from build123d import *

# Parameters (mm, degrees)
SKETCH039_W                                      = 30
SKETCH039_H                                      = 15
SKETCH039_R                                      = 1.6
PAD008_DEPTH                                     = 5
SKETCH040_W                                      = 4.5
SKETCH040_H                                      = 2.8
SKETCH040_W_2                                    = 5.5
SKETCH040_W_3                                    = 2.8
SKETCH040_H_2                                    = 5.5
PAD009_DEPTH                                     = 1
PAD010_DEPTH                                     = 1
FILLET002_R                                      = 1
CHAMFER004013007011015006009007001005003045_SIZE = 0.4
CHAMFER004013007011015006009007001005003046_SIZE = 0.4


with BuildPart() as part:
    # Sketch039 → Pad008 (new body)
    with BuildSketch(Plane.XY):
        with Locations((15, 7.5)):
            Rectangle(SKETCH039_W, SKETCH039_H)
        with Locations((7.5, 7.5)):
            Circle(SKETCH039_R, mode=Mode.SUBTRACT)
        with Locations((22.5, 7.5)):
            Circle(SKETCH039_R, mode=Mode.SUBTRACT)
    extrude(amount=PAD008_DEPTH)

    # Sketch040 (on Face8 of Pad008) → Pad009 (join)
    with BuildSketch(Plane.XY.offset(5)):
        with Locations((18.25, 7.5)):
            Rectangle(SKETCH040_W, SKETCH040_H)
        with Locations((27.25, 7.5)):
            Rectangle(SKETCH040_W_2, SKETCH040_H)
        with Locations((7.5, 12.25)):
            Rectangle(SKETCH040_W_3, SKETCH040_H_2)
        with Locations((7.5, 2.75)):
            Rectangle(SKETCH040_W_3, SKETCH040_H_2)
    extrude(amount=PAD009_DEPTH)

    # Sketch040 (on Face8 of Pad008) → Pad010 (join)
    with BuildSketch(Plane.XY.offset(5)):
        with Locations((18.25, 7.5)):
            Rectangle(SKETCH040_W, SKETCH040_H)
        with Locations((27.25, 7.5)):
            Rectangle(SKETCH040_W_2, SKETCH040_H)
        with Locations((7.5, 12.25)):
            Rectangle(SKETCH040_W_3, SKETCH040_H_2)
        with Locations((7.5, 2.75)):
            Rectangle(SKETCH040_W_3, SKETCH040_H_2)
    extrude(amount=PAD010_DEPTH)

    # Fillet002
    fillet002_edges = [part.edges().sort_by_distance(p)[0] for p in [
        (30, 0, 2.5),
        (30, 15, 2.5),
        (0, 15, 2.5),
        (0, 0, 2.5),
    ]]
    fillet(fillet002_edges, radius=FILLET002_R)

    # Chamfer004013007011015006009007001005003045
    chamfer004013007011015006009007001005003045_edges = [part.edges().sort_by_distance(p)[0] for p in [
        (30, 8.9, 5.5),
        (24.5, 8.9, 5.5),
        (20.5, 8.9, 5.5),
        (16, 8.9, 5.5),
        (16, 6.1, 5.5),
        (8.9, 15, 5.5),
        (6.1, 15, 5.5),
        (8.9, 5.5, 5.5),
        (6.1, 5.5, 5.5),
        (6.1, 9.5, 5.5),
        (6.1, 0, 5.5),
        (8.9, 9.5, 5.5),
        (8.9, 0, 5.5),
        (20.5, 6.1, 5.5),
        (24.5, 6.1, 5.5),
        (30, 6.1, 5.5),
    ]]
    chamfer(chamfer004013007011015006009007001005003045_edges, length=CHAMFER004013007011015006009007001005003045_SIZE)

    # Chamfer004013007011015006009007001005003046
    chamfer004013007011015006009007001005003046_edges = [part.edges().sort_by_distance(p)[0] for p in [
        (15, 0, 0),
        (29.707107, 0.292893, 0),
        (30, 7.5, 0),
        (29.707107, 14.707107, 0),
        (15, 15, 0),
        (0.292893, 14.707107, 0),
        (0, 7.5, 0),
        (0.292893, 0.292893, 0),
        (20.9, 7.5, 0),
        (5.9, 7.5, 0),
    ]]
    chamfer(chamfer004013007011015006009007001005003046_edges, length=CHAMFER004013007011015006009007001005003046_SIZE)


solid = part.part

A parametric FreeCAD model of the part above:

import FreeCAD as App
import Part
import Sketcher

V = App.Vector


def edges_at(feature, points):
    """Names of the edges that pass closest to the given points."""
    edges = feature.Shape.Edges
    near = lambda p: min(range(len(edges)), key=lambda i: edges[i].distToShape(Part.Vertex(*p))[0])
    return sorted({f"Edge{near(p) + 1}" for p in points})


def add_polygon(sketch, points):
    """Adds a closed chain of lines whose ends are joined by coincident constraints."""
    first, n = sketch.GeometryCount, len(points)
    for a, b in zip(points, points[1:] + points[:1]):
        sketch.addGeometry(Part.LineSegment(App.Vector(*a, 0), App.Vector(*b, 0)), False)
    for i in range(n):
        sketch.addConstraint(Sketcher.Constraint("Coincident", first + i, 2, first + (i + 1) % n, 1))

doc = App.newDocument("Part")
body = doc.addObject("PartDesign::Body", "Body")

# Sketch on XY plane
sketch1 = body.newObject("Sketcher::SketchObject", "Sketch")
sketch1.AttachmentSupport = (doc.getObject("XY_Plane"), [""])
sketch1.MapMode = "FlatFace"
add_polygon(sketch1, [(0, 15), (0, 0), (30, 0), (30, 15)])  # lines 0-3
sketch1.addGeometry(Part.Circle(V(7.5, 7.5, 0), V(0, 0, 1), 1.6), False)  # 4
sketch1.addGeometry(Part.Circle(V(22.5, 7.5, 0), V(0, 0, 1), 1.6), False)  # 5
sketch1.addConstraint([
    Sketcher.Constraint("Vertical", 0),
    Sketcher.Constraint("Horizontal", 1),
    Sketcher.Constraint("Vertical", 2),
    Sketcher.Constraint("Horizontal", 3),
    Sketcher.Constraint("Coincident", 0, 2, -1, 1),
    Sketcher.Constraint("Equal", 4, 5),
    Sketcher.Constraint("Horizontal", 4, 3, 5, 3),
    Sketcher.Constraint("Diameter", 4, 3.2),
    Sketcher.Constraint("DistanceX", 1, 1, 1, 2, 30.0),
    Sketcher.Constraint("DistanceY", 0, 2, 0, 1, 15.0),
    Sketcher.Constraint("DistanceX", 4, 3, 5, 3, 15.0),
    Sketcher.Constraint("DistanceX", -1, 1, 4, 3, 7.5),
    Sketcher.Constraint("DistanceY", -1, 1, 4, 3, 7.5),
])
pad1 = body.newObject("PartDesign::Pad", "Pad")
pad1.Profile = sketch1
pad1.Length = 5

# Sketch on XY plane
sketch2 = body.newObject("Sketcher::SketchObject", "Sketch001")
sketch2.AttachmentSupport = (doc.getObject("XY_Plane"), [""])
sketch2.MapMode = "FlatFace"
sketch2.AttachmentOffset = App.Placement(V(0, 0, 5), App.Rotation())
add_polygon(sketch2, [(16, 8.9), (16, 6.1), (20.5, 6.1), (20.5, 8.9)])  # lines 0-3
add_polygon(sketch2, [(24.5, 8.9), (24.5, 6.1), (30, 6.1), (30, 8.9)])  # lines 4-7
add_polygon(sketch2, [(6.1, 15), (6.1, 9.5), (8.9, 9.5), (8.9, 15)])  # lines 8-11
add_polygon(sketch2, [(6.1, 5.5), (6.1, 0), (8.9, 0), (8.9, 5.5)])  # lines 12-15
sketch2.addConstraint([
    Sketcher.Constraint("Vertical", 0),
    Sketcher.Constraint("Horizontal", 1),
    Sketcher.Constraint("Vertical", 2),
    Sketcher.Constraint("Horizontal", 3),
    Sketcher.Constraint("Vertical", 4),
    Sketcher.Constraint("Horizontal", 5),
    Sketcher.Constraint("Vertical", 6),
    Sketcher.Constraint("Horizontal", 7),
    Sketcher.Constraint("Vertical", 8),
    Sketcher.Constraint("Horizontal", 9),
    Sketcher.Constraint("Vertical", 10),
    Sketcher.Constraint("Horizontal", 11),
    Sketcher.Constraint("Vertical", 12),
    Sketcher.Constraint("Horizontal", 13),
    Sketcher.Constraint("Vertical", 14),
    Sketcher.Constraint("Horizontal", 15),
    Sketcher.Constraint("PointOnObject", 12, 2, -1),
    Sketcher.Constraint("Horizontal", 1, 2, 4, 2),
    Sketcher.Constraint("Horizontal", 3, 2, 6, 2),
    Sketcher.Constraint("Vertical", 11, 2, 12, 2),
    Sketcher.Constraint("Vertical", 10, 2, 13, 2),
    Sketcher.Constraint("Equal", 15, 0),
    Sketcher.Constraint("Equal", 7, 8),
    Sketcher.Constraint("Equal", 10, 12),
    Sketcher.Constraint("DistanceX", 1, 1, 1, 2, 4.5),
    Sketcher.Constraint("DistanceX", 5, 1, 5, 2, 5.5),
    Sketcher.Constraint("DistanceX", 9, 1, 9, 2, 2.8),
    Sketcher.Constraint("DistanceX", -1, 1, 0, 2, 16.0),
    Sketcher.Constraint("DistanceX", -1, 1, 5, 2, 30.0),
    Sketcher.Constraint("DistanceY", -1, 1, 10, 2, 15.0),
    Sketcher.Constraint("DistanceY", -1, 1, 0, 2, 6.1),
    Sketcher.Constraint("DistanceX", -1, 1, 8, 2, 6.1),
])
pad2 = body.newObject("PartDesign::Pad", "Pad001")
pad2.Profile = sketch2
pad2.Length = 1

# Sketch on XY plane
sketch3 = body.newObject("Sketcher::SketchObject", "Sketch002")
sketch3.AttachmentSupport = (doc.getObject("XY_Plane"), [""])
sketch3.MapMode = "FlatFace"
sketch3.AttachmentOffset = App.Placement(V(0, 0, 5), App.Rotation())
add_polygon(sketch3, [(16, 8.9), (16, 6.1), (20.5, 6.1), (20.5, 8.9)])  # lines 0-3
add_polygon(sketch3, [(24.5, 8.9), (24.5, 6.1), (30, 6.1), (30, 8.9)])  # lines 4-7
add_polygon(sketch3, [(6.1, 15), (6.1, 9.5), (8.9, 9.5), (8.9, 15)])  # lines 8-11
add_polygon(sketch3, [(6.1, 5.5), (6.1, 0), (8.9, 0), (8.9, 5.5)])  # lines 12-15
sketch3.addConstraint([
    Sketcher.Constraint("Vertical", 0),
    Sketcher.Constraint("Horizontal", 1),
    Sketcher.Constraint("Vertical", 2),
    Sketcher.Constraint("Horizontal", 3),
    Sketcher.Constraint("Vertical", 4),
    Sketcher.Constraint("Horizontal", 5),
    Sketcher.Constraint("Vertical", 6),
    Sketcher.Constraint("Horizontal", 7),
    Sketcher.Constraint("Vertical", 8),
    Sketcher.Constraint("Horizontal", 9),
    Sketcher.Constraint("Vertical", 10),
    Sketcher.Constraint("Horizontal", 11),
    Sketcher.Constraint("Vertical", 12),
    Sketcher.Constraint("Horizontal", 13),
    Sketcher.Constraint("Vertical", 14),
    Sketcher.Constraint("Horizontal", 15),
    Sketcher.Constraint("PointOnObject", 12, 2, -1),
    Sketcher.Constraint("Horizontal", 1, 2, 4, 2),
    Sketcher.Constraint("Horizontal", 3, 2, 6, 2),
    Sketcher.Constraint("Vertical", 11, 2, 12, 2),
    Sketcher.Constraint("Vertical", 10, 2, 13, 2),
    Sketcher.Constraint("Equal", 15, 0),
    Sketcher.Constraint("Equal", 7, 8),
    Sketcher.Constraint("Equal", 10, 12),
    Sketcher.Constraint("DistanceX", 1, 1, 1, 2, 4.5),
    Sketcher.Constraint("DistanceX", 5, 1, 5, 2, 5.5),
    Sketcher.Constraint("DistanceX", 9, 1, 9, 2, 2.8),
    Sketcher.Constraint("DistanceX", -1, 1, 0, 2, 16.0),
    Sketcher.Constraint("DistanceX", -1, 1, 5, 2, 30.0),
    Sketcher.Constraint("DistanceY", -1, 1, 10, 2, 15.0),
    Sketcher.Constraint("DistanceY", -1, 1, 0, 2, 6.1),
    Sketcher.Constraint("DistanceX", -1, 1, 8, 2, 6.1),
])
pad3 = body.newObject("PartDesign::Pad", "Pad002")
pad3.Profile = sketch3
pad3.Length = 1
doc.recompute()

fillet = body.newObject("PartDesign::Fillet", "Fillet")
fillet.Base = (pad3, edges_at(pad3, [
    (30, 0, 2.5),
    (30, 15, 2.5),
    (0, 15, 2.5),
    (0, 0, 2.5),
]))
fillet.Radius = 1
doc.recompute()

chamfer = body.newObject("PartDesign::Chamfer", "Chamfer")
chamfer.Base = (fillet, edges_at(fillet, [
    (30, 8.9, 5.5),
    (24.5, 8.9, 5.5),
    (20.5, 8.9, 5.5),
    (16, 8.9, 5.5),
    (16, 6.1, 5.5),
    (8.9, 15, 5.5),
    (6.1, 15, 5.5),
    (8.9, 5.5, 5.5),
    (6.1, 5.5, 5.5),
    (6.1, 9.5, 5.5),
    (6.1, 0, 5.5),
    (8.9, 9.5, 5.5),
    (8.9, 0, 5.5),
    (20.5, 6.1, 5.5),
    (24.5, 6.1, 5.5),
    (30, 6.1, 5.5),
]))
chamfer.Size = 0.4
doc.recompute()

chamfer2 = body.newObject("PartDesign::Chamfer", "Chamfer001")
chamfer2.Base = (chamfer, edges_at(chamfer, [
    (15, 0, 0),
    (29.707, 0.293, 0),
    (30, 7.5, 0),
    (29.707, 14.707, 0),
    (15, 15, 0),
    (0.293, 14.707, 0),
    (0, 7.5, 0),
    (0.293, 0.293, 0),
    (20.9, 7.5, 0),
    (5.9, 7.5, 0),
]))
chamfer2.Size = 0.4

doc.recompute()
